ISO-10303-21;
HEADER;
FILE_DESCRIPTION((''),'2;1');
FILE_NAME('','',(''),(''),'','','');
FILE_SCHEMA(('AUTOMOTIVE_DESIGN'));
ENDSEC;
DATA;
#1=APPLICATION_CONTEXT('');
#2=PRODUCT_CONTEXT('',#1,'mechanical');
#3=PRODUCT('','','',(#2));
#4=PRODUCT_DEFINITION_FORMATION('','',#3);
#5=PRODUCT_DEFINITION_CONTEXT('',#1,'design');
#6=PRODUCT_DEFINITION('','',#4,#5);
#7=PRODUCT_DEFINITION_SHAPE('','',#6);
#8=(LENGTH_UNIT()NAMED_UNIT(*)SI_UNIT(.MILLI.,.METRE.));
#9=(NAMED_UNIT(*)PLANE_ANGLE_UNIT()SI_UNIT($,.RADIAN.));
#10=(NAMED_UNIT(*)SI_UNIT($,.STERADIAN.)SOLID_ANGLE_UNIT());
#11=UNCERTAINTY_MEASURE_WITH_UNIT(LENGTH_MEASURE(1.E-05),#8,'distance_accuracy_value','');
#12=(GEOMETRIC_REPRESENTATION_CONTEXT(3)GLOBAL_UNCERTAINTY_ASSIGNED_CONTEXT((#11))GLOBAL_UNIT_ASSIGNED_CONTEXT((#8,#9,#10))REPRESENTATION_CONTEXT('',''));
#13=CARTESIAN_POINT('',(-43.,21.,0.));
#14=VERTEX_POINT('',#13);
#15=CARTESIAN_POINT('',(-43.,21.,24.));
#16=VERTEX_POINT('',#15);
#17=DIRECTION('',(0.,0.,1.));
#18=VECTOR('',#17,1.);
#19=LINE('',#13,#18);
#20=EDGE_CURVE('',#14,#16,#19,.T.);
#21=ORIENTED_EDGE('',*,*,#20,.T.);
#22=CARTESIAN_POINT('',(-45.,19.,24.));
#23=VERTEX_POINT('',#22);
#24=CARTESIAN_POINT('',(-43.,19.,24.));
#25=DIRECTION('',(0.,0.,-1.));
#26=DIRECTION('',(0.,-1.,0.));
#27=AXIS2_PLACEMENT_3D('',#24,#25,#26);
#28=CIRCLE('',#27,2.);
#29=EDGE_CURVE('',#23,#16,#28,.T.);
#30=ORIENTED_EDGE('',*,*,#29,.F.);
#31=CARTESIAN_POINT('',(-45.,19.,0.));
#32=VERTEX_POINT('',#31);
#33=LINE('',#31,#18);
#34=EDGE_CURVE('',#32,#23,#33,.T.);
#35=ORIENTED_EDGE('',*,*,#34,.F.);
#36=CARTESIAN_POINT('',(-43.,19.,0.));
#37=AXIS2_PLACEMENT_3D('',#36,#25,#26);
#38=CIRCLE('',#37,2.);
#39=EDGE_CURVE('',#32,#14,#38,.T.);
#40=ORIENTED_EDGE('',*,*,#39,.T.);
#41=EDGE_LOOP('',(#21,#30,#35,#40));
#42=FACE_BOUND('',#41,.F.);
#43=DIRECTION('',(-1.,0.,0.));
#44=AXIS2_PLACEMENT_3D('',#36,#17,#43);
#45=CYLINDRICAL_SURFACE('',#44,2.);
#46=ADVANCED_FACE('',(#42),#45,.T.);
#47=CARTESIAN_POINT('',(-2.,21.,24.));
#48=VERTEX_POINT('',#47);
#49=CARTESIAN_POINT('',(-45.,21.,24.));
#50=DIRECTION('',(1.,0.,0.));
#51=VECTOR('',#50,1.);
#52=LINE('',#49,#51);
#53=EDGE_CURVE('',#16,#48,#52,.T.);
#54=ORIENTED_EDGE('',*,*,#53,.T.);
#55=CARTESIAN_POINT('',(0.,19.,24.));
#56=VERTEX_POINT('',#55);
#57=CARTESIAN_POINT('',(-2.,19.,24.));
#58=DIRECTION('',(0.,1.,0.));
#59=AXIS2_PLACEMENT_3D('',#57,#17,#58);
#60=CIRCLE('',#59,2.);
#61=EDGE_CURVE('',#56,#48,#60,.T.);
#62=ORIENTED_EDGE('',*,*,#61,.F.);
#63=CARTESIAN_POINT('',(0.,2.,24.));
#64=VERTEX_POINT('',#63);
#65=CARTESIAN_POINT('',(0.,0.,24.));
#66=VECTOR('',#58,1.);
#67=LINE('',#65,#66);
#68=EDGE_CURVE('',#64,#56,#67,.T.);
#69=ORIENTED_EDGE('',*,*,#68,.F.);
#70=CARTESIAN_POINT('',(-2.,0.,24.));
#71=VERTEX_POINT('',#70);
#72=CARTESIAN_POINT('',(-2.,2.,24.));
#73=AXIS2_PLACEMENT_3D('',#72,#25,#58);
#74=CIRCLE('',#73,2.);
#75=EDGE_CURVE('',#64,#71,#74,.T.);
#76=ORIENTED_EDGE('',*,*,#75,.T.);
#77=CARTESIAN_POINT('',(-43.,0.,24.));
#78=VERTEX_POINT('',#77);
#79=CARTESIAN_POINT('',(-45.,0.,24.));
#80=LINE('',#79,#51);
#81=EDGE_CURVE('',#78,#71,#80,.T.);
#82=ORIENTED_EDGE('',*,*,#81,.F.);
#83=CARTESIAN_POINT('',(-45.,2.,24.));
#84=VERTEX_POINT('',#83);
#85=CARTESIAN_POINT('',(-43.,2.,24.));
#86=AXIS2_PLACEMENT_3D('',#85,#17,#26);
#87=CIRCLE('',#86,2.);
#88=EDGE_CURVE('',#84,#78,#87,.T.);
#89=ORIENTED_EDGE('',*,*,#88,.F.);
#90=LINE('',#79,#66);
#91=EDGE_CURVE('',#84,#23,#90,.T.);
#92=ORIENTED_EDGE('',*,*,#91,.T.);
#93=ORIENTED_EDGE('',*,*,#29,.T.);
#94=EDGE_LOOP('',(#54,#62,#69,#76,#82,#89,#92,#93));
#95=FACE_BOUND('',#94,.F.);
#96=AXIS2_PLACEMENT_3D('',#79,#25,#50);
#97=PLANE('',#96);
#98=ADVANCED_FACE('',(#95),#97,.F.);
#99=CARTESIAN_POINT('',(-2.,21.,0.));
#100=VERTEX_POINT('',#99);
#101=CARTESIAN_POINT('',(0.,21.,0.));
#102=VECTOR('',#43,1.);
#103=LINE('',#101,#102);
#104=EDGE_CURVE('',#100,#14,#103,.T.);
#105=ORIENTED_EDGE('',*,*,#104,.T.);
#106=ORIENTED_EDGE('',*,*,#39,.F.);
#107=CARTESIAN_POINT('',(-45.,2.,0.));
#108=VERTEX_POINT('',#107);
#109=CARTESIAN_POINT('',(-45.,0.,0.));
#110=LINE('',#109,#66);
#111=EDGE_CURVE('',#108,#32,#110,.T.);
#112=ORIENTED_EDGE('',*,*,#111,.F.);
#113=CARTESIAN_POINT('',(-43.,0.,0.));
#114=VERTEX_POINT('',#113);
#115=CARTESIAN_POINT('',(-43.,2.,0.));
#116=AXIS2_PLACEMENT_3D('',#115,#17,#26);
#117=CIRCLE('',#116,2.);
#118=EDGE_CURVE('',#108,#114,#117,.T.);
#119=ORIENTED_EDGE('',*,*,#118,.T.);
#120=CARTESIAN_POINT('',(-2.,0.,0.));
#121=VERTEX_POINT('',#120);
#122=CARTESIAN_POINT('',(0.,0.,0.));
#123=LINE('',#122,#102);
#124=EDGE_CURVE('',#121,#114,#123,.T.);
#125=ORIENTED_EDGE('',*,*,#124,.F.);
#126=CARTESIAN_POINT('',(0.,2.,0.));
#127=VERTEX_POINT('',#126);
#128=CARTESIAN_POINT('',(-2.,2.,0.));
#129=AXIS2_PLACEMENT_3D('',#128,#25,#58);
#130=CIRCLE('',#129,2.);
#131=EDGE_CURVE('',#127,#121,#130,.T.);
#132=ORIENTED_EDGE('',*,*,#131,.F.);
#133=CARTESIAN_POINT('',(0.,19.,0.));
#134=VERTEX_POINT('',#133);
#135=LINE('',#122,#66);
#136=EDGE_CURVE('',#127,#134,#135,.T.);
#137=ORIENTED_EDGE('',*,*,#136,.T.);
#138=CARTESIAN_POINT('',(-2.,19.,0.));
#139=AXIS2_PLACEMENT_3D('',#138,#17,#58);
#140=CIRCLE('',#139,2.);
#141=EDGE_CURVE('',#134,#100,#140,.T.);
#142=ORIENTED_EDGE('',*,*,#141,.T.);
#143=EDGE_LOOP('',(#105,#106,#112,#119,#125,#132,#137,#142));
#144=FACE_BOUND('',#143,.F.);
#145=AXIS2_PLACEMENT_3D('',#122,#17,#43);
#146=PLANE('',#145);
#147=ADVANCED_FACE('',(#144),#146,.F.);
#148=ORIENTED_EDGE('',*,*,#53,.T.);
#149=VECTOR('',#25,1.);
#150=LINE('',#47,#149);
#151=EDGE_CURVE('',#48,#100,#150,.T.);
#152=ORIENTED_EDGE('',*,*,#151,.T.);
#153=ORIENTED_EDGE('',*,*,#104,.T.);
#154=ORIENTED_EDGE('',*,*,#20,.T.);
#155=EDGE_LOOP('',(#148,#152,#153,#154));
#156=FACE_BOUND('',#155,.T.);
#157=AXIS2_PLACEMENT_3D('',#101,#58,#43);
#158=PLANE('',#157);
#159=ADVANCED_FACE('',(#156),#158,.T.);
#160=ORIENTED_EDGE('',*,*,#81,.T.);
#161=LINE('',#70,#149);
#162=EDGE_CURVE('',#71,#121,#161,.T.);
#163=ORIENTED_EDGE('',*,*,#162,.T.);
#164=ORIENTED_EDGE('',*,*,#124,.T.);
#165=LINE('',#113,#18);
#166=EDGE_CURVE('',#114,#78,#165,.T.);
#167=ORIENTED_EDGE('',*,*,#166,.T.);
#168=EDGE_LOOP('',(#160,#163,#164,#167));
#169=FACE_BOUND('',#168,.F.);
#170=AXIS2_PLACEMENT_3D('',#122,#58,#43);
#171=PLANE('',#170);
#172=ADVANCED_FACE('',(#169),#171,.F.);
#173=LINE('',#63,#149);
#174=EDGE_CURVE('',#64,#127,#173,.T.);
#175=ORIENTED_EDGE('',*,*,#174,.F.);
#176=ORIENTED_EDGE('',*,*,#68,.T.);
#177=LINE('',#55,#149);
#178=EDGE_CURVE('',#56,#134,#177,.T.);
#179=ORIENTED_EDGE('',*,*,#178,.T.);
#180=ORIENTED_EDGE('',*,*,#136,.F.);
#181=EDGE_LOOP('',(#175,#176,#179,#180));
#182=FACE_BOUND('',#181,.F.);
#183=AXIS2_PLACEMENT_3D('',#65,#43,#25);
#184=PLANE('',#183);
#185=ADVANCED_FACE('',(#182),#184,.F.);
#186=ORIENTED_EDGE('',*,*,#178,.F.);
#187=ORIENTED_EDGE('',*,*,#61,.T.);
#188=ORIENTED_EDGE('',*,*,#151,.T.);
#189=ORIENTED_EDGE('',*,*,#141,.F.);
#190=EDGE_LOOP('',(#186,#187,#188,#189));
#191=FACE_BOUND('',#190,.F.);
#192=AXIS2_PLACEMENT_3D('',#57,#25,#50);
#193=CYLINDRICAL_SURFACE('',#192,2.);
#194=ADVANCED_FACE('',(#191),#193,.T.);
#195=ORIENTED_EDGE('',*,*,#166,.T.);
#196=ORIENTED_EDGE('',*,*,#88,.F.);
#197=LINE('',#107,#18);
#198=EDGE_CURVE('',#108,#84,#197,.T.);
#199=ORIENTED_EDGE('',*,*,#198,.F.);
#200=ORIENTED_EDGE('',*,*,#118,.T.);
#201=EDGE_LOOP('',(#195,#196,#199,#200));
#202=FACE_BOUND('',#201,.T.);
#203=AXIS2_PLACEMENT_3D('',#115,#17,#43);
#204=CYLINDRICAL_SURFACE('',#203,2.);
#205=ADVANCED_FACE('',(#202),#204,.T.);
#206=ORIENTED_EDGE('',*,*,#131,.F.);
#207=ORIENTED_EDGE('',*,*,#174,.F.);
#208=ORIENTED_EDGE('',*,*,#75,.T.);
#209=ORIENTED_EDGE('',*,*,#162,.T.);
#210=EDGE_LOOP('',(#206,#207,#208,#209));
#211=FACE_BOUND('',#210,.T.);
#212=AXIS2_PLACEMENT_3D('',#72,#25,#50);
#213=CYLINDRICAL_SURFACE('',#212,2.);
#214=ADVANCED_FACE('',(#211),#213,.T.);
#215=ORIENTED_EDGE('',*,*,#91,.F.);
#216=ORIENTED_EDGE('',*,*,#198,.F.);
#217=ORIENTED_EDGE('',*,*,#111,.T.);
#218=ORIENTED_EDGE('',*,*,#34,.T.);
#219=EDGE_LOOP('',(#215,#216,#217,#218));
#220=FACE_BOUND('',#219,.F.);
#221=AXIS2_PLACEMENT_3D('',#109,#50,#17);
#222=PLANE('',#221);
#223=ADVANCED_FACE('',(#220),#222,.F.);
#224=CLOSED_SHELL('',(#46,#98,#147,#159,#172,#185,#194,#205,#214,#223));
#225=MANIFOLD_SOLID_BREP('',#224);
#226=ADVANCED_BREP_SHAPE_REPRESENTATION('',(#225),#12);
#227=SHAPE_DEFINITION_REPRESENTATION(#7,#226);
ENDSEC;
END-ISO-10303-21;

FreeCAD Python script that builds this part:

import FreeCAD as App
import Part
import Sketcher
from FreeCAD import Vector
Q = App.Units.Quantity


def edges_at(feature, points):
    """Names of the edges that pass closest to the given points."""
    edges = feature.Shape.Edges
    near = lambda p: min(range(len(edges)), key=lambda i: edges[i].distToShape(Part.Vertex(*p))[0])
    return sorted({f"Edge{near(p) + 1}" for p in points})


def add_polygon(sketch, points):
    """Adds a closed chain of lines whose ends are joined by coincident constraints."""
    first, n = sketch.GeometryCount, len(points)
    for a, b in zip(points, points[1:] + points[:1]):
        sketch.addGeometry(Part.LineSegment(App.Vector(*a, 0), App.Vector(*b, 0)), False)
    for i in range(n):
        sketch.addConstraint(Sketcher.Constraint("Coincident", first + i, 2, first + (i + 1) % n, 1))

doc = App.newDocument("Part")
body = doc.addObject("PartDesign::Body", "Body")

sketch1 = body.newObject("Sketcher::SketchObject", "Sketch")
sketch1.AttachmentSupport = (doc.getObject("XZ_Plane"), [""])
sketch1.MapMode = "FlatFace"
add_polygon(sketch1, [(0, 24), (0, 0), (-45, 0), (-45, 24)])
sketch1.addConstraint([
    Sketcher.Constraint("Vertical", 0),
    Sketcher.Constraint("Horizontal", 1),
    Sketcher.Constraint("Vertical", 2),
    Sketcher.Constraint("Horizontal", 3),
    Sketcher.Constraint("Coincident", 0, 2, -1, 1),
    Sketcher.Constraint("DistanceX", 1, 2, 1, 1, Q("45 mm")),
    Sketcher.Constraint("DistanceY", 0, 2, 0, 1, Q("24 mm")),
])
pad1 = body.newObject("PartDesign::Pad", "Pad")
pad1.Profile = sketch1
pad1.Length = 21
pad1.Reversed = True
doc.recompute()

fillet = body.newObject("PartDesign::Fillet", "Fillet")
fillet.Base = (pad1, edges_at(pad1, [
    (0, 21, 12),
    (0, 0, 12),
    (-45, 21, 12),
    (-45, 0, 12),
]))
fillet.Radius = 2

doc.recompute()
